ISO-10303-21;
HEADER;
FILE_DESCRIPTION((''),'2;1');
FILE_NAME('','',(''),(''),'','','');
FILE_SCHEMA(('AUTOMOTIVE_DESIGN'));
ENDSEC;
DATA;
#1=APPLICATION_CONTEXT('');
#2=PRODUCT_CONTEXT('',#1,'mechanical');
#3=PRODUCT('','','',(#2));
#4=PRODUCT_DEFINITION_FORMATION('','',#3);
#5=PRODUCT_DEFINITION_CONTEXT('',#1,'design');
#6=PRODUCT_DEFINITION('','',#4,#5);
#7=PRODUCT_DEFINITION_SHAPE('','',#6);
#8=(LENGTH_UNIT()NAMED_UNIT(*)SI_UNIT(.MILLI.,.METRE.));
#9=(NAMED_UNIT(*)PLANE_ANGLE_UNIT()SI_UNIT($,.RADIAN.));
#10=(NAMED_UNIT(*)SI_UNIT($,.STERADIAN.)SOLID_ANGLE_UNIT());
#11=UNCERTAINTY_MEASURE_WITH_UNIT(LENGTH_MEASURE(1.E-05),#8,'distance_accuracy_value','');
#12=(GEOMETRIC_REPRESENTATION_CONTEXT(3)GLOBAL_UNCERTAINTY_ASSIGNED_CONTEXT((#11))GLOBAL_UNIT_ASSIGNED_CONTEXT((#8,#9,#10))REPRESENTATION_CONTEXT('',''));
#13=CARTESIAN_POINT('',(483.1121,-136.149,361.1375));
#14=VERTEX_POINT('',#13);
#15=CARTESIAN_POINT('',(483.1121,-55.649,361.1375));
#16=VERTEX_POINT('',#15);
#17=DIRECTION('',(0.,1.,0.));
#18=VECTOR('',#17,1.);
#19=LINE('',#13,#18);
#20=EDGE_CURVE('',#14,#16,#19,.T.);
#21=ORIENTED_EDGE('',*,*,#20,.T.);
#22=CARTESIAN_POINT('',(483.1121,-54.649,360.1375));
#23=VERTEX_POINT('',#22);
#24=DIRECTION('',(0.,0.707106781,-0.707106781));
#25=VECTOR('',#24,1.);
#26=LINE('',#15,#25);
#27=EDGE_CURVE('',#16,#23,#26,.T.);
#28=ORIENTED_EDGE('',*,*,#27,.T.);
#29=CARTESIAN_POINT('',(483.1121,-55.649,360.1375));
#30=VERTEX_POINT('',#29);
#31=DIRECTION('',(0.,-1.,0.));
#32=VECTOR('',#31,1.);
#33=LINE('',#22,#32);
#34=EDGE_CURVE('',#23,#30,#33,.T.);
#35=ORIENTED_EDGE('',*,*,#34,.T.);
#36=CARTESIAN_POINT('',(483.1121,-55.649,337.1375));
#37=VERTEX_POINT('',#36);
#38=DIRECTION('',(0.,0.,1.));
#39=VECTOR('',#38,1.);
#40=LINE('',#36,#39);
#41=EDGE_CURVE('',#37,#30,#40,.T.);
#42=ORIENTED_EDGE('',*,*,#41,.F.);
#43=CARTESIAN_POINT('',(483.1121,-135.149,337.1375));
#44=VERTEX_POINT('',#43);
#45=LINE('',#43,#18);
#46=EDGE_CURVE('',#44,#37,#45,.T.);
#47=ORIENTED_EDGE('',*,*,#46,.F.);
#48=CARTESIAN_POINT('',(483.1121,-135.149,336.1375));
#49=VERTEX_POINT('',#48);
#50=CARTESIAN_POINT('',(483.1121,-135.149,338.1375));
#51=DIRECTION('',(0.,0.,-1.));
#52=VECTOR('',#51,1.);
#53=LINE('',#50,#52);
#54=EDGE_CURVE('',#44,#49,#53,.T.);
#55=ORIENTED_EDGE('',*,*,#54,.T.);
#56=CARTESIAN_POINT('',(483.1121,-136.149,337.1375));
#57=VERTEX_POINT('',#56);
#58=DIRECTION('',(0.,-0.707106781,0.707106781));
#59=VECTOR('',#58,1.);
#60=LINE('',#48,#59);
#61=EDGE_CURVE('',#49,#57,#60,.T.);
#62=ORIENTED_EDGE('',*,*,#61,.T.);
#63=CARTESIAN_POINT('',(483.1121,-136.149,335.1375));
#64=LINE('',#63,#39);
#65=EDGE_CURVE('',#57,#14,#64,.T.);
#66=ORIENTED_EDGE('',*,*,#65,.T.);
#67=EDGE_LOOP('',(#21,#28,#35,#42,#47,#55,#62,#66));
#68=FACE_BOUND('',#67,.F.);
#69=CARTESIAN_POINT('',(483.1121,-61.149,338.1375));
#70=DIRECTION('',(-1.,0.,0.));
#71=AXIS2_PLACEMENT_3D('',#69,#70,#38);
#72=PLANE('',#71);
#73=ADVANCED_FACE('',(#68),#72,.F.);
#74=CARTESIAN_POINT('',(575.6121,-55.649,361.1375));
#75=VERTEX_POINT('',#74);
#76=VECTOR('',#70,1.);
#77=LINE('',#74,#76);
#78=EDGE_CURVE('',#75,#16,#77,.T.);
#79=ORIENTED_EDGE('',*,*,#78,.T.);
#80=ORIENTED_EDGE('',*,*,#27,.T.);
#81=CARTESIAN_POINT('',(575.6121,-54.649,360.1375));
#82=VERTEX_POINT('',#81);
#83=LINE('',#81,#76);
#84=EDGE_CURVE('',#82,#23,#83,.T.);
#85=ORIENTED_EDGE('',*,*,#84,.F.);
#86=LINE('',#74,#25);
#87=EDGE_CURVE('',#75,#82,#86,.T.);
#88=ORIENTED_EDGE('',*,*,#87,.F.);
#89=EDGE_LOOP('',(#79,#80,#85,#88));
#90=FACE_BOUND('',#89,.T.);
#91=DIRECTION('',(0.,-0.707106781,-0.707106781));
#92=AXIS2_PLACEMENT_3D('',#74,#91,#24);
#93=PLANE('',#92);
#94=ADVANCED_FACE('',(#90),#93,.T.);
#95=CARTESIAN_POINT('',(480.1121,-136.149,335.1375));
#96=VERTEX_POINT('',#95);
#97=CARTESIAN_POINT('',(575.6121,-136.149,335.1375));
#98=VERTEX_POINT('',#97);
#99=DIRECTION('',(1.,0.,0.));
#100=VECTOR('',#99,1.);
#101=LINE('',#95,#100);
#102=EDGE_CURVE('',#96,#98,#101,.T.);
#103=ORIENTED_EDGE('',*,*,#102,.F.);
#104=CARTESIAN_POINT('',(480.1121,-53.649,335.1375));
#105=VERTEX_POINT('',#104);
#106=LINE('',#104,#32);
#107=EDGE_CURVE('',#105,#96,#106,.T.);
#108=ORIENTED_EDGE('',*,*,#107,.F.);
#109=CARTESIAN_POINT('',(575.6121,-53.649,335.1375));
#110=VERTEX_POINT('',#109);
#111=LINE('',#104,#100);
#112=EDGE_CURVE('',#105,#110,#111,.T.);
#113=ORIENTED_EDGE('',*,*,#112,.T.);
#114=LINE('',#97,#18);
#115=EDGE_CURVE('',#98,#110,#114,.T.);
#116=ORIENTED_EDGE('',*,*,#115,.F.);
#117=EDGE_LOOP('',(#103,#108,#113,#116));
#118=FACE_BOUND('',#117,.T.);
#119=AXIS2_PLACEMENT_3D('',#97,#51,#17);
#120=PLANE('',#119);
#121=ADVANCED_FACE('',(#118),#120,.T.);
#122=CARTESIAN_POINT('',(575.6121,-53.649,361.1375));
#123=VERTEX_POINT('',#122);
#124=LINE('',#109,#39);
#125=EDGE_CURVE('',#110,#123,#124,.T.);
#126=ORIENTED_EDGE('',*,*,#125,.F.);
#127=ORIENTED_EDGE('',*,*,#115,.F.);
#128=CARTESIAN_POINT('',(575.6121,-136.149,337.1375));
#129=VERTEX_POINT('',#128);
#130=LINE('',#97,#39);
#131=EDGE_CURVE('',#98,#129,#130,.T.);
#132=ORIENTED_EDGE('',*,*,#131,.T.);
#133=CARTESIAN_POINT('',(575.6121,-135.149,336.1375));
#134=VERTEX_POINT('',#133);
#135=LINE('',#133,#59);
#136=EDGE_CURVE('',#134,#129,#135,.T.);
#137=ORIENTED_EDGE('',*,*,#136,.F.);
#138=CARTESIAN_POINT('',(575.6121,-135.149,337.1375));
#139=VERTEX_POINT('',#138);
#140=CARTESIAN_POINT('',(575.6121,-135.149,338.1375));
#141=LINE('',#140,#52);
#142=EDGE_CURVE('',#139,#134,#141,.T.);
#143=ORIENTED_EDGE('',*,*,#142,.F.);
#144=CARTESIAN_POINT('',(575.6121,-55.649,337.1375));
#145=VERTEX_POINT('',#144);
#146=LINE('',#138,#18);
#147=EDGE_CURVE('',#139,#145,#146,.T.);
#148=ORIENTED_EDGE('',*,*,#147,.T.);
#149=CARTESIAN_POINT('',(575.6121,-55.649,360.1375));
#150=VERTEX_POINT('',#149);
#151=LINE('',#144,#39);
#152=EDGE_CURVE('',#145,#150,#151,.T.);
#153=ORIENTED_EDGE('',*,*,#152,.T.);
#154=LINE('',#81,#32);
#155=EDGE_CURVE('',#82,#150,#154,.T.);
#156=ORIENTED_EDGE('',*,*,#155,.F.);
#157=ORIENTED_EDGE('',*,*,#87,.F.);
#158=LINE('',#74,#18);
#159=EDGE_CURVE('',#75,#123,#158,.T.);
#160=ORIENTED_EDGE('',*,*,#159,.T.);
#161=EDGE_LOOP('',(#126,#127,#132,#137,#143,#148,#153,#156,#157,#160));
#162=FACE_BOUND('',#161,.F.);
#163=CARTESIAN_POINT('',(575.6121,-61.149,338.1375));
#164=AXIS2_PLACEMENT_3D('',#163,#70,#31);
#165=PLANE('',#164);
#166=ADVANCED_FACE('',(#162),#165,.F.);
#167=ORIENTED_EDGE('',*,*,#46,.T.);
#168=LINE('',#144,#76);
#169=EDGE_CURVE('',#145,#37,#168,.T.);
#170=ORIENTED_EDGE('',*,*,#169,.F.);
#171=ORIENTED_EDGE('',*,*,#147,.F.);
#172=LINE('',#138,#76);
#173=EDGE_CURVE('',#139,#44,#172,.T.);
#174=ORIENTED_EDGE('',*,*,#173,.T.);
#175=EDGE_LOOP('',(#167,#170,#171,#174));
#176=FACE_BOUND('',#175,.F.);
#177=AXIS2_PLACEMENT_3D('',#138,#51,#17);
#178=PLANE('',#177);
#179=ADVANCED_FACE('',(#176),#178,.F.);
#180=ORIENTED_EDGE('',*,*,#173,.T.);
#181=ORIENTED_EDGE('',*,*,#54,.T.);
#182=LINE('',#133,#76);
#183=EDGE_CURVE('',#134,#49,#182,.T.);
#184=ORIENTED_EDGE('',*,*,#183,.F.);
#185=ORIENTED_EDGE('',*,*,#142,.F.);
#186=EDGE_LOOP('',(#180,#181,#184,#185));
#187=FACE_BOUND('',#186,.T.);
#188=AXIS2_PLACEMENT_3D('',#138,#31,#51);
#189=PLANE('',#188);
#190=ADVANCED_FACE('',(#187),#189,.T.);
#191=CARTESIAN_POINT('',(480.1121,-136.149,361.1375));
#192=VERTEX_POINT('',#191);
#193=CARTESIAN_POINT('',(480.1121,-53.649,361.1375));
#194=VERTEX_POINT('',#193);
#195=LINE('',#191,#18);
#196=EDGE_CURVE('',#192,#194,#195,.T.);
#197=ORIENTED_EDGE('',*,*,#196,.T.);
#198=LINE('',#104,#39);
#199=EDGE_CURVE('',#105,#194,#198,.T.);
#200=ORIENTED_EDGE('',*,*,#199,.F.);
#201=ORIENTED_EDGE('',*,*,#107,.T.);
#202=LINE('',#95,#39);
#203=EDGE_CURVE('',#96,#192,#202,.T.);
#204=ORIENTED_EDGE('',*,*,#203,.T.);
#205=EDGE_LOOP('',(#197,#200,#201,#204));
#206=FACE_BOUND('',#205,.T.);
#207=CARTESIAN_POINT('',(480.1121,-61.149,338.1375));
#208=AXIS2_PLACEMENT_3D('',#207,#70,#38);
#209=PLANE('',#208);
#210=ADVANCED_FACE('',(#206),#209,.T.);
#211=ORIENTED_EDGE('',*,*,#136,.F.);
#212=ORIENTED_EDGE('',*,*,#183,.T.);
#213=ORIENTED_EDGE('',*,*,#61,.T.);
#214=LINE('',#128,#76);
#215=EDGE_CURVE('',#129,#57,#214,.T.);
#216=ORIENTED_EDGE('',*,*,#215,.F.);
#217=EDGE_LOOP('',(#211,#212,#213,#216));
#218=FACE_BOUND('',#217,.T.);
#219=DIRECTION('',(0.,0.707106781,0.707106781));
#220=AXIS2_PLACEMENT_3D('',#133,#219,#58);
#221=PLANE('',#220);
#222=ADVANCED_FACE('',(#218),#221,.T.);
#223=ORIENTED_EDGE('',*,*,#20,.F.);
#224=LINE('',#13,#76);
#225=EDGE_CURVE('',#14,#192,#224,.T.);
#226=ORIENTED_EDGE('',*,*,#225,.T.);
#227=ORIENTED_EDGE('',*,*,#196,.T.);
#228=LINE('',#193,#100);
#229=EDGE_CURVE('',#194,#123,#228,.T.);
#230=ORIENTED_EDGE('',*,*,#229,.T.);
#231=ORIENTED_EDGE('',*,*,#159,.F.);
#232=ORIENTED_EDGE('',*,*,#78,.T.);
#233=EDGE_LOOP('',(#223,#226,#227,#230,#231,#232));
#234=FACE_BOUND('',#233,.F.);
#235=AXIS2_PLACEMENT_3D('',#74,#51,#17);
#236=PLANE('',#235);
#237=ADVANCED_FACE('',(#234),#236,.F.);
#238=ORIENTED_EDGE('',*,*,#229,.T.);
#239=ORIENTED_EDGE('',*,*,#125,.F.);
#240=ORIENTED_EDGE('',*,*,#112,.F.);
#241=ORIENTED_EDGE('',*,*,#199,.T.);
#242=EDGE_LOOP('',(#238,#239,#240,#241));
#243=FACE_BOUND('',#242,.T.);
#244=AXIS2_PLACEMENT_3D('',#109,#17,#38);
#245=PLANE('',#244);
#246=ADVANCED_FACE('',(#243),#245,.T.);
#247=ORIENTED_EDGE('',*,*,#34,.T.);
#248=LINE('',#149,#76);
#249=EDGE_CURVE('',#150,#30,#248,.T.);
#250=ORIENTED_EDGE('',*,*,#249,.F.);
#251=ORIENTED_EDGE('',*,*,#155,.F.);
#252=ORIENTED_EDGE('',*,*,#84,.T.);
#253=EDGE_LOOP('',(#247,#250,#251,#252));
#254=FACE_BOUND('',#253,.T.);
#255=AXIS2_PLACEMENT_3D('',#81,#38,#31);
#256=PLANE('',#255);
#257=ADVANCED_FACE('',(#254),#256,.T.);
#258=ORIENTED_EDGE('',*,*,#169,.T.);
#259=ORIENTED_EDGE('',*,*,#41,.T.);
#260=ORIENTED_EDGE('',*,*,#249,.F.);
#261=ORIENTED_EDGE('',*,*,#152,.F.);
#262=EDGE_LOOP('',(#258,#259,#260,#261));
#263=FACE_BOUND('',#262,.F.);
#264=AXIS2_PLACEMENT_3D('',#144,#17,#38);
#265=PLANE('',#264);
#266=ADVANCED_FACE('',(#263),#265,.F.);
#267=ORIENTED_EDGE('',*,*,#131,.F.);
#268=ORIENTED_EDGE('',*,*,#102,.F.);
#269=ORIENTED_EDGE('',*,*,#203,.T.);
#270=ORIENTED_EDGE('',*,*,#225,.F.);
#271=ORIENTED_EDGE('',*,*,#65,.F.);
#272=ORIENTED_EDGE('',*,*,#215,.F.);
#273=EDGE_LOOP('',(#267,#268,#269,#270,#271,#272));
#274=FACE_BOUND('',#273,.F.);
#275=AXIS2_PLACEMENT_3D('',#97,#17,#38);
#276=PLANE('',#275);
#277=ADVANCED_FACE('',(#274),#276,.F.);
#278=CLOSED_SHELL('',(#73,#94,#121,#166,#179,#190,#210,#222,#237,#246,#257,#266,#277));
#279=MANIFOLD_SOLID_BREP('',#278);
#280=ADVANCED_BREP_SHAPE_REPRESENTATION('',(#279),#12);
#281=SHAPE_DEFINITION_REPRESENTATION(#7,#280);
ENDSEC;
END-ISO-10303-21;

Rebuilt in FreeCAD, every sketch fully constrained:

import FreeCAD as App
import Part
import Sketcher
from FreeCAD import Vector
Q = App.Units.Quantity

doc = App.newDocument("Part")
body = doc.addObject("PartDesign::Body", "Body")

# Sketch on YZ plane
sketch1 = body.newObject("Sketcher::SketchObject", "Sketch")
sketch1.AttachmentSupport = (doc.getObject("YZ_Plane"), [""])
sketch1.MapMode = "FlatFace"
sketch1.AttachmentOffset = App.Placement(Vector(0, 0, 575.6121), App.Rotation())
sketch1.addGeometry([
    Part.LineSegment(Vector(-136.1, 337.1, 0), Vector(-135.1, 336.1, 0)),  # 0
    Part.LineSegment(Vector(-135.1, 336.1, 0), Vector(-135.1, 337.1, 0)),  # 1
    Part.LineSegment(Vector(-135.1, 337.1, 0), Vector(-55.6, 337.1, 0)),  # 2
    Part.LineSegment(Vector(-55.6, 337.1, 0), Vector(-55.6, 360.1, 0)),  # 3
    Part.LineSegment(Vector(-55.6, 360.1, 0), Vector(-54.6, 360.1, 0)),  # 4
    Part.LineSegment(Vector(-54.6, 360.1, 0), Vector(-55.6, 361.1, 0)),  # 5
    Part.LineSegment(Vector(-55.6, 361.1, 0), Vector(-53.6, 361.1, 0)),  # 6
    Part.LineSegment(Vector(-53.6, 361.1, 0), Vector(-53.6, 335.1, 0)),  # 7
    Part.LineSegment(Vector(-53.6, 335.1, 0), Vector(-136.1, 335.1, 0)),  # 8
    Part.LineSegment(Vector(-136.1, 335.1, 0), Vector(-136.1, 337.1, 0)),  # 9
], False)
sketch1.addConstraint([
    Sketcher.Constraint("Coincident", 0, 2, 1, 1),
    Sketcher.Constraint("Coincident", 1, 2, 2, 1),
    Sketcher.Constraint("Coincident", 2, 2, 3, 1),
    Sketcher.Constraint("Coincident", 3, 2, 4, 1),
    Sketcher.Constraint("Coincident", 4, 2, 5, 1),
    Sketcher.Constraint("Coincident", 5, 2, 6, 1),
    Sketcher.Constraint("Coincident", 6, 2, 7, 1),
    Sketcher.Constraint("Coincident", 7, 2, 8, 1),
    Sketcher.Constraint("Coincident", 8, 2, 9, 1),
    Sketcher.Constraint("Coincident", 9, 2, 0, 1),
    Sketcher.Constraint("Vertical", 1),
    Sketcher.Constraint("Horizontal", 2),
    Sketcher.Constraint("Vertical", 3),
    Sketcher.Constraint("Horizontal", 4),
    Sketcher.Constraint("Horizontal", 6),
    Sketcher.Constraint("Vertical", 7),
    Sketcher.Constraint("Horizontal", 8),
    Sketcher.Constraint("Vertical", 9),
    Sketcher.Constraint("Parallel", 0, 5),
    Sketcher.Constraint("Horizontal", 2, 2, 9, 2),
    Sketcher.Constraint("Vertical", 3, 2, 5, 2),
    Sketcher.Constraint("Equal", 4, 1),
    Sketcher.Constraint("Equal", 6, 9),
    Sketcher.Constraint("Equal", 0, 5),
    Sketcher.Constraint("DistanceX", 4, 1, 4, 2, Q("1 mm")),
    Sketcher.Constraint("DistanceX", 6, 1, 6, 2, Q("2 mm")),
    Sketcher.Constraint("DistanceY", 3, 1, 3, 2, Q("23 mm")),
    Sketcher.Constraint("DistanceX", 2, 1, 2, 2, Q("79.5 mm")),
    Sketcher.Constraint("DistanceX", 0, 2, -1, 1, Q("135.149 mm")),
    Sketcher.Constraint("DistanceY", -1, 1, 0, 2, Q("336.1375 mm")),
])
pad1 = body.newObject("PartDesign::Pad", "Pad")
pad1.Profile = sketch1
pad1.Length = 92.5
pad1.Reversed = True

# Sketch on YZ plane
sketch2 = body.newObject("Sketcher::SketchObject", "Sketch001")
sketch2.AttachmentSupport = (doc.getObject("YZ_Plane"), [""])
sketch2.MapMode = "FlatFace"
sketch2.AttachmentOffset = App.Placement(Vector(0, 0, 483.1121), App.Rotation())
sketch2.addGeometry([
    Part.LineSegment(Vector(-54, 361, 0), Vector(-54, 335, 0)),
    Part.LineSegment(Vector(-54, 335, 0), Vector(-136, 335, 0)),
    Part.LineSegment(Vector(-136, 335, 0), Vector(-136, 361, 0)),
    Part.LineSegment(Vector(-136, 361, 0), Vector(-54, 361, 0)),
], False)
sketch2.addConstraint([
    Sketcher.Constraint("Coincident", 0, 2, 1, 1),
    Sketcher.Constraint("Coincident", 1, 2, 2, 1),
    Sketcher.Constraint("Coincident", 2, 2, 3, 1),
    Sketcher.Constraint("Coincident", 3, 2, 0, 1),
    Sketcher.Constraint("Vertical", 0),
    Sketcher.Constraint("Horizontal", 1),
    Sketcher.Constraint("Vertical", 2),
    Sketcher.Constraint("Horizontal", 3),
    Sketcher.Constraint("DistanceY", 0, 2, 0, 1, Q("26 mm")),
    Sketcher.Constraint("DistanceX", 1, 2, 1, 1, Q("82.5 mm")),
    Sketcher.Constraint("DistanceX", 0, 2, -1, 1, Q("53.649 mm")),
    Sketcher.Constraint("DistanceY", -1, 1, 0, 2, Q("335.1375 mm")),
])
pad2 = body.newObject("PartDesign::Pad", "Pad001")
pad2.Profile = sketch2
pad2.Length = 3
pad2.Reversed = True

doc.recompute()
